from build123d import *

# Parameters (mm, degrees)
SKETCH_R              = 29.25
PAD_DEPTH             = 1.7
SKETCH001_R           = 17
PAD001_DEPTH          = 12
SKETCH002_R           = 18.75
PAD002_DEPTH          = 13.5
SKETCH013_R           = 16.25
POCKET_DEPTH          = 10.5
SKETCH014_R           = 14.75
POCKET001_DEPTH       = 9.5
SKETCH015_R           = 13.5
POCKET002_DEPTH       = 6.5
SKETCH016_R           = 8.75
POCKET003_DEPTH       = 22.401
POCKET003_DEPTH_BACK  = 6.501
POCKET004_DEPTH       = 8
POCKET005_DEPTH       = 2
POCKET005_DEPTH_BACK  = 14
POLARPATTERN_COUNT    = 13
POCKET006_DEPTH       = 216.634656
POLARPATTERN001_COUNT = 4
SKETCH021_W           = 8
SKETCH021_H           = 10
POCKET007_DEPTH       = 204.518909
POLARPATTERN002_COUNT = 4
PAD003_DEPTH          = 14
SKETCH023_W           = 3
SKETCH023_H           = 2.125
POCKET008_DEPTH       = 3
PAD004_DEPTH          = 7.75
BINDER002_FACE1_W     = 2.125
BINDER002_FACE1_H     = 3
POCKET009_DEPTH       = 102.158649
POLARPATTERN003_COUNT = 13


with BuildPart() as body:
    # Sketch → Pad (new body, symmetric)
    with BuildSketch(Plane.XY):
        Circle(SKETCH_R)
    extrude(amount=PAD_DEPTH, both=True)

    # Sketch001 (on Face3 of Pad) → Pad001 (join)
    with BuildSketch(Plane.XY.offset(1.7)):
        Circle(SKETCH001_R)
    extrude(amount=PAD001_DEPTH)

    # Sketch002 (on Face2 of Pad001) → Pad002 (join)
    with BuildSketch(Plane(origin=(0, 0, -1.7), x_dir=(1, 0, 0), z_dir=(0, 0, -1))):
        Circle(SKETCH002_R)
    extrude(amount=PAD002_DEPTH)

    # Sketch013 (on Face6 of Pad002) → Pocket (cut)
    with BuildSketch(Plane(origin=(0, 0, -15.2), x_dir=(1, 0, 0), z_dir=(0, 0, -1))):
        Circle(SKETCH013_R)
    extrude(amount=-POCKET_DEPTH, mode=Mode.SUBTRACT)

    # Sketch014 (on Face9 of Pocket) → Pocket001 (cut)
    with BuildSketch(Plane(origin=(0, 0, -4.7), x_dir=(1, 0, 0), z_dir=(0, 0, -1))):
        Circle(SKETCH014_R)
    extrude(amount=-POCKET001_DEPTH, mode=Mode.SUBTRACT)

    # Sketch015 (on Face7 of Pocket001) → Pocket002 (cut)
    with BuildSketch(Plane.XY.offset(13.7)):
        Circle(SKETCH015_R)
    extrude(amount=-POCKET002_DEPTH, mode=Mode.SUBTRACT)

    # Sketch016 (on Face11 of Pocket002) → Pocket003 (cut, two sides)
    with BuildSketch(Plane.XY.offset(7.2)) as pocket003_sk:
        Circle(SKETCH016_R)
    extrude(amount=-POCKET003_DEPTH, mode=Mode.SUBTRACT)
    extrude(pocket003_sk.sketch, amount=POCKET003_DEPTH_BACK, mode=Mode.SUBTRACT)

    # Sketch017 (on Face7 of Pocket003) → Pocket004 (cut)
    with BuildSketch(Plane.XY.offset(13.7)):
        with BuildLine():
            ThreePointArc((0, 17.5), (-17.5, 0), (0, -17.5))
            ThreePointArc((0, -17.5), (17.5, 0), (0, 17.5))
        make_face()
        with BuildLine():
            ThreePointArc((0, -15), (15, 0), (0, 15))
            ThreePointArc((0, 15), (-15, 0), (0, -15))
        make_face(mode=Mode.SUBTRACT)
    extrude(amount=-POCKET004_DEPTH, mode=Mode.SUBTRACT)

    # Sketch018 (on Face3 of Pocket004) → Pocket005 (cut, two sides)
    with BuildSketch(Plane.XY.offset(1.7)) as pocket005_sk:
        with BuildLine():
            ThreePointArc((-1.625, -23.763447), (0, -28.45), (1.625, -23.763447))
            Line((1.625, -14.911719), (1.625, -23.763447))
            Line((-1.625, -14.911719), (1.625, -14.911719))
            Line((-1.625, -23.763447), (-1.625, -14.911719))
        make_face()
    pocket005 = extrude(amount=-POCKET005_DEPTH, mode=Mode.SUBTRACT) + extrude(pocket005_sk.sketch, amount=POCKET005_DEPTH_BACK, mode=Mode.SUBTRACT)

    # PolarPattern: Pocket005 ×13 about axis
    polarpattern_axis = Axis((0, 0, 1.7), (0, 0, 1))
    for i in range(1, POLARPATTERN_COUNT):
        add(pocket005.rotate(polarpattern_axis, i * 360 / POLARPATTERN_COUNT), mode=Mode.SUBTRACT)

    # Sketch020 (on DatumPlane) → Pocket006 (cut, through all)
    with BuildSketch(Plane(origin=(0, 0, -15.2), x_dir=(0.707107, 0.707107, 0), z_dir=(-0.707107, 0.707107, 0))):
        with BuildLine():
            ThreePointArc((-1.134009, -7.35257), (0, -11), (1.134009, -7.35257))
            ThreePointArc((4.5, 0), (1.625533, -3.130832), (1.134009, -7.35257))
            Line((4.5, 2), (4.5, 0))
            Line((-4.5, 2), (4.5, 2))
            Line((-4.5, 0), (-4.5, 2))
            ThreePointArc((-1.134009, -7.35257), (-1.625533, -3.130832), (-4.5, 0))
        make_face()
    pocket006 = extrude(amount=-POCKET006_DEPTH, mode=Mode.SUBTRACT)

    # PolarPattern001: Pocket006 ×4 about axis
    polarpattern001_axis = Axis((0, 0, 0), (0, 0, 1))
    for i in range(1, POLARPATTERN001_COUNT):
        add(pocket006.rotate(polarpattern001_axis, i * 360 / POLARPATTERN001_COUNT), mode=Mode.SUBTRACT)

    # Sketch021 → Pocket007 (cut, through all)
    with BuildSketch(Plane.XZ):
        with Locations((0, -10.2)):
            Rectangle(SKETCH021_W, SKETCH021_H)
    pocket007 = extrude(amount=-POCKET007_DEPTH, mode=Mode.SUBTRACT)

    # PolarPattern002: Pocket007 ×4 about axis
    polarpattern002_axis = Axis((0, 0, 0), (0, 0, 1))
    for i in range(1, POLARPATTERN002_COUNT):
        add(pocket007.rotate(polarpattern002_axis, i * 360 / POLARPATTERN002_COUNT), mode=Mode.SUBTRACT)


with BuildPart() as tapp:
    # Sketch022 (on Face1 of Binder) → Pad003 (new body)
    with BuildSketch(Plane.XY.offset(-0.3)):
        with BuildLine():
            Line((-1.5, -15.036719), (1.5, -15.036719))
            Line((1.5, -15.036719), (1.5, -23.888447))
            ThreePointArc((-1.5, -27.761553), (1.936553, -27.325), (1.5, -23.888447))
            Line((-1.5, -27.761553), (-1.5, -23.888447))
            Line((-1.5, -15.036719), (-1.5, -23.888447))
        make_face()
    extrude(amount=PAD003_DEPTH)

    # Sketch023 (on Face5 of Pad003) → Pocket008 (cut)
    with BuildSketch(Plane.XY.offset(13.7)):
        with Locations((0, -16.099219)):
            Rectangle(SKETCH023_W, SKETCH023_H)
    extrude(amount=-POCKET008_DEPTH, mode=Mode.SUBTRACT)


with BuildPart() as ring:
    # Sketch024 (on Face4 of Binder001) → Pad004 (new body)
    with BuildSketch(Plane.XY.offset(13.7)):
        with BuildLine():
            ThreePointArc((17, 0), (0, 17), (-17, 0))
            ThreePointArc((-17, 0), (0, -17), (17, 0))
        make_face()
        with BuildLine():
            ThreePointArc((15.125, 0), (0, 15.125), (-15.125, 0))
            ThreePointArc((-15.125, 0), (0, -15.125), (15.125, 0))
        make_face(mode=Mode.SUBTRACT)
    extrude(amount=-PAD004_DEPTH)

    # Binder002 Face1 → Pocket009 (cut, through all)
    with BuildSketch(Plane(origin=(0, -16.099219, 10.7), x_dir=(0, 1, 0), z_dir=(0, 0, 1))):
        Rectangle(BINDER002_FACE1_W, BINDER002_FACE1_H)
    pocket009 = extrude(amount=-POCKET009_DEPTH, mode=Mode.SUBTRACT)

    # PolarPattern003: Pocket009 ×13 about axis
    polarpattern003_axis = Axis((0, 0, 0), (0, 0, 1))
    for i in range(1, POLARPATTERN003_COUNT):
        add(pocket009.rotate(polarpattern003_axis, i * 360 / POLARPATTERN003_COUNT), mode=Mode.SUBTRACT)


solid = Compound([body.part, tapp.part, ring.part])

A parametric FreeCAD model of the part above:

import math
import FreeCAD as App
import Part
import Sketcher
Q = App.Units.Quantity


def add_polygon(sketch, points):
    """Adds a closed chain of lines whose ends are joined by coincident constraints."""
    first, n = sketch.GeometryCount, len(points)
    for a, b in zip(points, points[1:] + points[:1]):
        sketch.addGeometry(Part.LineSegment(App.Vector(*a, 0), App.Vector(*b, 0)), False)
    for i in range(n):
        sketch.addConstraint(Sketcher.Constraint("Coincident", first + i, 2, first + (i + 1) % n, 1))

doc = App.newDocument("Part")
body = doc.addObject("PartDesign::Body", "Body")

sketch1 = doc.addObject("Sketcher::SketchObject", "Sketch")
body.addObject(sketch1)
sketch1.AttachmentSupport = (doc.XY_Plane, [""])
sketch1.MapMode = "FlatFace"
sketch1.addGeometry(Part.Circle(App.Vector(0, 0, 0), App.Vector(0, 0, 1), 29.25), False)
sketch1.addConstraint(Sketcher.Constraint("Coincident", 0, 3, -1, 1))
sketch1.addConstraint(Sketcher.Constraint("Diameter", 0, Q("58.5 mm")))
pad1 = doc.addObject("PartDesign::Pad", "Pad")
body.addObject(pad1)
pad1.Profile = sketch1
pad1.Length = 3.4
pad1.Midplane = True

sketch2 = doc.addObject("Sketcher::SketchObject", "Sketch001")
body.addObject(sketch2)
sketch2.AttachmentSupport = (doc.XY_Plane, [""])
sketch2.MapMode = "FlatFace"
sketch2.AttachmentOffset = App.Placement(App.Vector(0, 0, 1.7), App.Rotation())
sketch2.addGeometry(Part.Circle(App.Vector(0, 0, 0), App.Vector(0, 0, 1), 17), False)
sketch2.addConstraint(Sketcher.Constraint("Coincident", 0, 3, -1, 1))
sketch2.addConstraint(Sketcher.Constraint("Diameter", 0, Q("34 mm")))
pad2 = doc.addObject("PartDesign::Pad", "Pad001")
body.addObject(pad2)
pad2.Profile = sketch2
pad2.Length = 12

sketch3 = doc.addObject("Sketcher::SketchObject", "Sketch002")
body.addObject(sketch3)
sketch3.AttachmentSupport = (doc.XY_Plane, [""])
sketch3.MapMode = "FlatFace"
sketch3.AttachmentOffset = App.Placement(App.Vector(0, 0, -1.7), App.Rotation())
sketch3.addGeometry(Part.Circle(App.Vector(0, 0, 0), App.Vector(0, 0, 1), 18.75), False)
sketch3.addConstraint(Sketcher.Constraint("Coincident", 0, 3, -1, 1))
sketch3.addConstraint(Sketcher.Constraint("Diameter", 0, Q("37.5 mm")))
pad3 = doc.addObject("PartDesign::Pad", "Pad002")
body.addObject(pad3)
pad3.Profile = sketch3
pad3.Length = 13.5
pad3.Reversed = True

sketch4 = doc.addObject("Sketcher::SketchObject", "Sketch003")
body.addObject(sketch4)
sketch4.AttachmentSupport = (doc.XY_Plane, [""])
sketch4.MapMode = "FlatFace"
sketch4.AttachmentOffset = App.Placement(App.Vector(0, 0, -15.2), App.Rotation())
sketch4.addGeometry(Part.Circle(App.Vector(0, 0, 0), App.Vector(0, 0, 1), 16.25), False)
sketch4.addConstraint(Sketcher.Constraint("Coincident", 0, 3, -1, 1))
sketch4.addConstraint(Sketcher.Constraint("Diameter", 0, Q("32.5 mm")))
pocket1 = doc.addObject("PartDesign::Pocket", "Pocket")
body.addObject(pocket1)
pocket1.Profile = sketch4
pocket1.Length = 10.5
pocket1.Reversed = True

sketch5 = doc.addObject("Sketcher::SketchObject", "Sketch004")
body.addObject(sketch5)
sketch5.AttachmentSupport = (doc.XY_Plane, [""])
sketch5.MapMode = "FlatFace"
sketch5.AttachmentOffset = App.Placement(App.Vector(0, 0, -4.7), App.Rotation())
sketch5.addGeometry(Part.Circle(App.Vector(0, 0, 0), App.Vector(0, 0, 1), 14.75), False)
sketch5.addConstraint(Sketcher.Constraint("Coincident", 0, 3, -1, 1))
sketch5.addConstraint(Sketcher.Constraint("Diameter", 0, Q("29.5 mm")))
pocket2 = doc.addObject("PartDesign::Pocket", "Pocket001")
body.addObject(pocket2)
pocket2.Profile = sketch5
pocket2.Length = 9.5
pocket2.Reversed = True

sketch6 = doc.addObject("Sketcher::SketchObject", "Sketch005")
body.addObject(sketch6)
sketch6.AttachmentSupport = (doc.XY_Plane, [""])
sketch6.MapMode = "FlatFace"
sketch6.AttachmentOffset = App.Placement(App.Vector(0, 0, 13.7), App.Rotation())
sketch6.addGeometry(Part.Circle(App.Vector(0, 0, 0), App.Vector(0, 0, 1), 13.5), False)
sketch6.addConstraint(Sketcher.Constraint("Coincident", 0, 3, -1, 1))
sketch6.addConstraint(Sketcher.Constraint("Diameter", 0, Q("27 mm")))
pocket3 = doc.addObject("PartDesign::Pocket", "Pocket002")
body.addObject(pocket3)
pocket3.Profile = sketch6
pocket3.Length = 6.5

sketch7 = doc.addObject("Sketcher::SketchObject", "Sketch006")
body.addObject(sketch7)
sketch7.AttachmentSupport = (doc.XY_Plane, [""])
sketch7.MapMode = "FlatFace"
sketch7.AttachmentOffset = App.Placement(App.Vector(0, 0, 7.2), App.Rotation())
sketch7.addGeometry(Part.Circle(App.Vector(0, 0, 0), App.Vector(0, 0, 1), 8.75), False)
sketch7.addConstraint(Sketcher.Constraint("Coincident", 0, 3, -1, 1))
sketch7.addConstraint(Sketcher.Constraint("Diameter", 0, Q("17.5 mm")))
pocket4 = doc.addObject("PartDesign::Pocket", "Pocket003")
body.addObject(pocket4)
pocket4.Profile = sketch7
pocket4.Type = "ThroughAll"
pocket4.Midplane = True

sketch8 = doc.addObject("Sketcher::SketchObject", "Sketch007")
body.addObject(sketch8)
sketch8.AttachmentSupport = (doc.XY_Plane, [""])
sketch8.MapMode = "FlatFace"
sketch8.AttachmentOffset = App.Placement(App.Vector(0, 0, 13.7), App.Rotation())
sketch8.addGeometry(Part.Circle(App.Vector(0, 0, 0), App.Vector(0, 0, 1), 17.5), False)
sketch8.addGeometry(Part.Circle(App.Vector(0, 0, 0), App.Vector(0, 0, 1), 15), False)
sketch8.addConstraint(Sketcher.Constraint("Coincident", 0, 3, -1, 1))
sketch8.addConstraint(Sketcher.Constraint("Coincident", 1, 3, -1, 1))
sketch8.addConstraint(Sketcher.Constraint("Diameter", 0, Q("35 mm")))
sketch8.addConstraint(Sketcher.Constraint("Diameter", 1, Q("30 mm")))
pocket5 = doc.addObject("PartDesign::Pocket", "Pocket004")
body.addObject(pocket5)
pocket5.Profile = sketch8
pocket5.Length = 8

sketch9 = doc.addObject("Sketcher::SketchObject", "Sketch008")
body.addObject(sketch9)
sketch9.AttachmentSupport = (doc.XY_Plane, [""])
sketch9.MapMode = "FlatFace"
sketch9.AttachmentOffset = App.Placement(App.Vector(0, 0, 1.7), App.Rotation())
sketch9.addGeometry(Part.ArcOfCircle(Part.Circle(App.Vector(0, -25.825, 0), App.Vector(0, 0, 1), 2.625), math.radians(128.246618), math.radians(411.753382)), False)
sketch9.addGeometry(Part.LineSegment(App.Vector(1.625, -23.763447, 0), App.Vector(1.625, -14.911719, 0)), False)
sketch9.addGeometry(Part.LineSegment(App.Vector(1.625, -14.911719, 0), App.Vector(-1.625, -14.911719, 0)), False)
sketch9.addGeometry(Part.LineSegment(App.Vector(-1.625, -14.911719, 0), App.Vector(-1.625, -23.763447, 0)), False)
sketch9.addConstraint(Sketcher.Constraint("Coincident", 0, 2, 1, 1))
sketch9.addConstraint(Sketcher.Constraint("Coincident", 1, 2, 2, 1))
sketch9.addConstraint(Sketcher.Constraint("Coincident", 2, 2, 3, 1))
sketch9.addConstraint(Sketcher.Constraint("Coincident", 3, 2, 0, 1))
sketch9.addConstraint(Sketcher.Constraint("Vertical", 1))
sketch9.addConstraint(Sketcher.Constraint("Horizontal", 2))
sketch9.addConstraint(Sketcher.Constraint("Vertical", 3))
sketch9.addConstraint(Sketcher.Constraint("Symmetric", 0, 2, 3, 2, -2))
sketch9.addConstraint(Sketcher.Constraint("Radius", 0, Q("2.625 mm")))
sketch9.addConstraint(Sketcher.Constraint("DistanceX", 2, 2, 2, 1, Q("3.25 mm")))
sketch9.addConstraint(Sketcher.Constraint("DistanceY", 0, 3, -1, 1, Q("25.825 mm")))
sketch9.addConstraint(Sketcher.Constraint("DistanceY", 1, 1, 1, 2, Q("8.851728 mm")))
pocket6 = doc.addObject("PartDesign::Pocket", "Pocket005")
body.addObject(pocket6)
pocket6.Profile = sketch9
pocket6.Type = "TwoLengths"
pocket6.Length = 2
pocket6.Length2 = 14
doc.recompute()

polarpattern = doc.addObject("PartDesign::PolarPattern", "PolarPattern")
body.addObject(polarpattern)
polarpattern.Originals = [pocket6]
polarpattern.Axis = (doc.Z_Axis, [""])
polarpattern.Angle = 360
polarpattern.Occurrences = 13
body.Tip = polarpattern

sketch10 = doc.addObject("Sketcher::SketchObject", "Sketch009")
body.addObject(sketch10)
sketch10.Placement = App.Placement(App.Vector(0, 0, -15.2), App.Rotation(App.Vector(0.707106781, 0.707106781, 0), App.Vector(0, 0, -0.999999999), App.Vector(-0.707106781, 0.707106781, 0), "ZXY"))
sketch10.addGeometry(Part.ArcOfCircle(Part.Circle(App.Vector(0, -9, 0), App.Vector(0, 0, 1), 2), math.radians(124.541598), math.radians(415.458402)), False)
sketch10.addGeometry(Part.ArcOfCircle(Part.Circle(App.Vector(7.892857, -6, 0), App.Vector(0, 0, 1), 6.892857), math.radians(119.487128), math.radians(191.316459)), False)
sketch10.addGeometry(Part.LineSegment(App.Vector(4.5, 0, 0), App.Vector(4.5, 2, 0)), False)
sketch10.addGeometry(Part.LineSegment(App.Vector(4.5, 2, 0), App.Vector(-4.5, 2, 0)), False)
sketch10.addGeometry(Part.LineSegment(App.Vector(-4.5, 2, 0), App.Vector(-4.5, 0, 0)), False)
sketch10.addGeometry(Part.ArcOfCircle(Part.Circle(App.Vector(-7.892857, -6, 0), App.Vector(0, 0, 1), 6.892857), math.radians(-11.316459), math.radians(60.512872)), False)
sketch10.addConstraint(Sketcher.Constraint("Coincident", 0, 2, 1, 2))
sketch10.addConstraint(Sketcher.Constraint("Coincident", 1, 1, 2, 1))
sketch10.addConstraint(Sketcher.Constraint("Coincident", 2, 2, 3, 1))
sketch10.addConstraint(Sketcher.Constraint("Coincident", 3, 2, 4, 1))
sketch10.addConstraint(Sketcher.Constraint("Coincident", 4, 2, 5, 2))
sketch10.addConstraint(Sketcher.Constraint("Coincident", 5, 1, 0, 1))
sketch10.addConstraint(Sketcher.Constraint("Vertical", 2))
sketch10.addConstraint(Sketcher.Constraint("Horizontal", 3))
sketch10.addConstraint(Sketcher.Constraint("Vertical", 4))
sketch10.addConstraint(Sketcher.Constraint("Equal", 1, 5))
sketch10.addConstraint(Sketcher.Constraint("Symmetric", 1, 1, 4, 2, -1, 1))
sketch10.addConstraint(Sketcher.Constraint("Symmetric", 1, 3, 5, 3, -2))
sketch10.addConstraint(Sketcher.Constraint("PointOnObject", 0, 3, -2))
sketch10.addConstraint(Sketcher.Constraint("Radius", 0, Q("2 mm")))
sketch10.addConstraint(Sketcher.Constraint("DistanceX", 3, 2, 3, 1, Q("9 mm")))
sketch10.addConstraint(Sketcher.Constraint("DistanceY", 2, 1, 2, 2, Q("2 mm")))
sketch10.addConstraint(Sketcher.Constraint("DistanceY", 0, 3, -1, 1, Q("9 mm")))
sketch10.addConstraint(Sketcher.Constraint("DistanceY", 1, 3, -1, 1, Q("6 mm")))
sketch10.addConstraint(Sketcher.Constraint("Radius", 1, Q("6.892857 mm")))
pocket7 = doc.addObject("PartDesign::Pocket", "Pocket006")
body.addObject(pocket7)
pocket7.Profile = sketch10
pocket7.Type = "ThroughAll"
doc.recompute()

polarpattern2 = doc.addObject("PartDesign::PolarPattern", "PolarPattern001")
body.addObject(polarpattern2)
polarpattern2.Originals = [pocket7]
polarpattern2.Axis = (doc.Z_Axis, [""])
polarpattern2.Angle = 360
polarpattern2.Occurrences = 4
body.Tip = polarpattern2

sketch11 = doc.addObject("Sketcher::SketchObject", "Sketch010")
body.addObject(sketch11)
sketch11.AttachmentSupport = (doc.XZ_Plane, [""])
sketch11.MapMode = "FlatFace"
add_polygon(sketch11, [(-4, -5.2), (-4, -15.2), (4, -15.2), (4, -5.2)])
sketch11.addConstraint(Sketcher.Constraint("Vertical", 0))
sketch11.addConstraint(Sketcher.Constraint("Horizontal", 1))
sketch11.addConstraint(Sketcher.Constraint("Vertical", 2))
sketch11.addConstraint(Sketcher.Constraint("Horizontal", 3))
sketch11.addConstraint(Sketcher.Constraint("DistanceX", 1, 1, 1, 2, Q("8 mm")))
sketch11.addConstraint(Sketcher.Constraint("DistanceY", 0, 2, 0, 1, Q("10 mm")))
sketch11.addConstraint(Sketcher.Constraint("DistanceX", 0, 2, -1, 1, Q("4 mm")))
sketch11.addConstraint(Sketcher.Constraint("DistanceY", 0, 2, -1, 1, Q("15.2 mm")))
pocket8 = doc.addObject("PartDesign::Pocket", "Pocket007")
body.addObject(pocket8)
pocket8.Profile = sketch11
pocket8.Type = "ThroughAll"
doc.recompute()

polarpattern3 = doc.addObject("PartDesign::PolarPattern", "PolarPattern002")
body.addObject(polarpattern3)
polarpattern3.Originals = [pocket8]
polarpattern3.Axis = (doc.Z_Axis, [""])
polarpattern3.Angle = 360
polarpattern3.Occurrences = 4
body.Tip = polarpattern3
body2 = doc.addObject("PartDesign::Body", "Body001")

sketch12 = doc.addObject("Sketcher::SketchObject", "Sketch011")
body2.addObject(sketch12)
sketch12.AttachmentSupport = (doc.getObject("XY_Plane001"), [""])
sketch12.MapMode = "FlatFace"
sketch12.AttachmentOffset = App.Placement(App.Vector(0, 0, -0.3), App.Rotation())
sketch12.addGeometry(Part.LineSegment(App.Vector(1.5, -15.036719, 0), App.Vector(-1.5, -15.036719, 0)), False)
sketch12.addGeometry(Part.LineSegment(App.Vector(-1.5, -15.036719, 0), App.Vector(-1.5, -27.761553, 0)), False)
sketch12.addGeometry(Part.ArcOfCircle(Part.Circle(App.Vector(0, -25.825, 0), App.Vector(0, 0, 1), 2.449538), math.radians(-127.760365), math.radians(52.239635)), False)
sketch12.addGeometry(Part.LineSegment(App.Vector(1.5, -23.888447, 0), App.Vector(1.5, -15.036719, 0)), False)
sketch12.addConstraint(Sketcher.Constraint("Coincident", 0, 2, 1, 1))
sketch12.addConstraint(Sketcher.Constraint("Coincident", 1, 2, 2, 1))
sketch12.addConstraint(Sketcher.Constraint("Coincident", 2, 2, 3, 1))
sketch12.addConstraint(Sketcher.Constraint("Coincident", 3, 2, 0, 1))
sketch12.addConstraint(Sketcher.Constraint("Horizontal", 0))
sketch12.addConstraint(Sketcher.Constraint("Vertical", 1))
sketch12.addConstraint(Sketcher.Constraint("Vertical", 3))
sketch12.addConstraint(Sketcher.Constraint("PointOnObject", 2, 3, -2))
sketch12.addConstraint(Sketcher.Constraint("DistanceX", 0, 2, 0, 1, Q("3 mm")))
sketch12.addConstraint(Sketcher.Constraint("DistanceX", 0, 2, -1, 1, Q("1.5 mm")))
sketch12.addConstraint(Sketcher.Constraint("Radius", 2, Q("2.449538 mm")))
sketch12.addConstraint(Sketcher.Constraint("DistanceY", 2, 3, -1, 1, Q("25.825 mm")))
sketch12.addConstraint(Sketcher.Constraint("DistanceY", 1, 2, 1, 1, Q("12.724834 mm")))
pad4 = doc.addObject("PartDesign::Pad", "Pad003")
body2.addObject(pad4)
pad4.Profile = sketch12
pad4.Length = 14

sketch13 = doc.addObject("Sketcher::SketchObject", "Sketch012")
body2.addObject(sketch13)
sketch13.AttachmentSupport = (doc.getObject("XY_Plane001"), [""])
sketch13.MapMode = "FlatFace"
sketch13.AttachmentOffset = App.Placement(App.Vector(0, 0, 13.7), App.Rotation())
add_polygon(sketch13, [(-1.5, -15.036719), (-1.5, -17.161719), (1.5, -17.161719), (1.5, -15.036719)])
sketch13.addConstraint(Sketcher.Constraint("Vertical", 0))
sketch13.addConstraint(Sketcher.Constraint("Horizontal", 1))
sketch13.addConstraint(Sketcher.Constraint("Vertical", 2))
sketch13.addConstraint(Sketcher.Constraint("Horizontal", 3))
sketch13.addConstraint(Sketcher.Constraint("DistanceX", 1, 1, 1, 2, Q("3 mm")))
sketch13.addConstraint(Sketcher.Constraint("DistanceX", 0, 2, -1, 1, Q("1.5 mm")))
sketch13.addConstraint(Sketcher.Constraint("DistanceY", 0, 2, 0, 1, Q("2.125 mm")))
sketch13.addConstraint(Sketcher.Constraint("DistanceY", 0, 2, -1, 1, Q("17.161719 mm")))
pocket9 = doc.addObject("PartDesign::Pocket", "Pocket008")
body2.addObject(pocket9)
pocket9.Profile = sketch13
pocket9.Length = 3
body3 = doc.addObject("PartDesign::Body", "Body002")

sketch14 = doc.addObject("Sketcher::SketchObject", "Sketch013")
body3.addObject(sketch14)
sketch14.AttachmentSupport = (doc.getObject("XY_Plane002"), [""])
sketch14.MapMode = "FlatFace"
sketch14.AttachmentOffset = App.Placement(App.Vector(0, 0, 13.7), App.Rotation())
sketch14.addGeometry(Part.Circle(App.Vector(0, 0, 0), App.Vector(0, 0, 1), 17), False)
sketch14.addGeometry(Part.Circle(App.Vector(0, 0, 0), App.Vector(0, 0, 1), 15.125), False)
sketch14.addConstraint(Sketcher.Constraint("Coincident", 0, 3, -1, 1))
sketch14.addConstraint(Sketcher.Constraint("Coincident", 1, 3, -1, 1))
sketch14.addConstraint(Sketcher.Constraint("Diameter", 0, Q("34 mm")))
sketch14.addConstraint(Sketcher.Constraint("Diameter", 1, Q("30.25 mm")))
pad5 = doc.addObject("PartDesign::Pad", "Pad004")
body3.addObject(pad5)
pad5.Profile = sketch14
pad5.Length = 7.75
pad5.Reversed = True

sketch15 = doc.addObject("Sketcher::SketchObject", "Sketch014")
body3.addObject(sketch15)
sketch15.AttachmentSupport = (doc.getObject("XY_Plane002"), [""])
sketch15.MapMode = "FlatFace"
sketch15.AttachmentOffset = App.Placement(App.Vector(0, 0, 10.7), App.Rotation())
add_polygon(sketch15, [(-1.5, -17.161719), (1.5, -17.161719), (1.5, -15.036719), (-1.5, -15.036719)])
sketch15.addConstraint(Sketcher.Constraint("Horizontal", 0))
sketch15.addConstraint(Sketcher.Constraint("Vertical", 1))
sketch15.addConstraint(Sketcher.Constraint("Horizontal", 2))
sketch15.addConstraint(Sketcher.Constraint("Vertical", 3))
sketch15.addConstraint(Sketcher.Constraint("DistanceX", 0, 1, 0, 2, Q("3 mm")))
sketch15.addConstraint(Sketcher.Constraint("DistanceX", -1, 1, 0, 2, Q("1.5 mm")))
sketch15.addConstraint(Sketcher.Constraint("DistanceY", 1, 1, 1, 2, Q("2.125 mm")))
sketch15.addConstraint(Sketcher.Constraint("DistanceY", 0, 2, -1, 1, Q("17.161719 mm")))
pocket10 = doc.addObject("PartDesign::Pocket", "Pocket009")
body3.addObject(pocket10)
pocket10.Profile = sketch15
pocket10.Type = "ThroughAll"
doc.recompute()

polarpattern4 = doc.addObject("PartDesign::PolarPattern", "PolarPattern003")
body3.addObject(polarpattern4)
polarpattern4.Originals = [pocket10]
polarpattern4.Axis = (doc.getObject("Z_Axis002"), [""])
polarpattern4.Angle = 360
polarpattern4.Occurrences = 13
body3.Tip = polarpattern4

doc.recompute()
